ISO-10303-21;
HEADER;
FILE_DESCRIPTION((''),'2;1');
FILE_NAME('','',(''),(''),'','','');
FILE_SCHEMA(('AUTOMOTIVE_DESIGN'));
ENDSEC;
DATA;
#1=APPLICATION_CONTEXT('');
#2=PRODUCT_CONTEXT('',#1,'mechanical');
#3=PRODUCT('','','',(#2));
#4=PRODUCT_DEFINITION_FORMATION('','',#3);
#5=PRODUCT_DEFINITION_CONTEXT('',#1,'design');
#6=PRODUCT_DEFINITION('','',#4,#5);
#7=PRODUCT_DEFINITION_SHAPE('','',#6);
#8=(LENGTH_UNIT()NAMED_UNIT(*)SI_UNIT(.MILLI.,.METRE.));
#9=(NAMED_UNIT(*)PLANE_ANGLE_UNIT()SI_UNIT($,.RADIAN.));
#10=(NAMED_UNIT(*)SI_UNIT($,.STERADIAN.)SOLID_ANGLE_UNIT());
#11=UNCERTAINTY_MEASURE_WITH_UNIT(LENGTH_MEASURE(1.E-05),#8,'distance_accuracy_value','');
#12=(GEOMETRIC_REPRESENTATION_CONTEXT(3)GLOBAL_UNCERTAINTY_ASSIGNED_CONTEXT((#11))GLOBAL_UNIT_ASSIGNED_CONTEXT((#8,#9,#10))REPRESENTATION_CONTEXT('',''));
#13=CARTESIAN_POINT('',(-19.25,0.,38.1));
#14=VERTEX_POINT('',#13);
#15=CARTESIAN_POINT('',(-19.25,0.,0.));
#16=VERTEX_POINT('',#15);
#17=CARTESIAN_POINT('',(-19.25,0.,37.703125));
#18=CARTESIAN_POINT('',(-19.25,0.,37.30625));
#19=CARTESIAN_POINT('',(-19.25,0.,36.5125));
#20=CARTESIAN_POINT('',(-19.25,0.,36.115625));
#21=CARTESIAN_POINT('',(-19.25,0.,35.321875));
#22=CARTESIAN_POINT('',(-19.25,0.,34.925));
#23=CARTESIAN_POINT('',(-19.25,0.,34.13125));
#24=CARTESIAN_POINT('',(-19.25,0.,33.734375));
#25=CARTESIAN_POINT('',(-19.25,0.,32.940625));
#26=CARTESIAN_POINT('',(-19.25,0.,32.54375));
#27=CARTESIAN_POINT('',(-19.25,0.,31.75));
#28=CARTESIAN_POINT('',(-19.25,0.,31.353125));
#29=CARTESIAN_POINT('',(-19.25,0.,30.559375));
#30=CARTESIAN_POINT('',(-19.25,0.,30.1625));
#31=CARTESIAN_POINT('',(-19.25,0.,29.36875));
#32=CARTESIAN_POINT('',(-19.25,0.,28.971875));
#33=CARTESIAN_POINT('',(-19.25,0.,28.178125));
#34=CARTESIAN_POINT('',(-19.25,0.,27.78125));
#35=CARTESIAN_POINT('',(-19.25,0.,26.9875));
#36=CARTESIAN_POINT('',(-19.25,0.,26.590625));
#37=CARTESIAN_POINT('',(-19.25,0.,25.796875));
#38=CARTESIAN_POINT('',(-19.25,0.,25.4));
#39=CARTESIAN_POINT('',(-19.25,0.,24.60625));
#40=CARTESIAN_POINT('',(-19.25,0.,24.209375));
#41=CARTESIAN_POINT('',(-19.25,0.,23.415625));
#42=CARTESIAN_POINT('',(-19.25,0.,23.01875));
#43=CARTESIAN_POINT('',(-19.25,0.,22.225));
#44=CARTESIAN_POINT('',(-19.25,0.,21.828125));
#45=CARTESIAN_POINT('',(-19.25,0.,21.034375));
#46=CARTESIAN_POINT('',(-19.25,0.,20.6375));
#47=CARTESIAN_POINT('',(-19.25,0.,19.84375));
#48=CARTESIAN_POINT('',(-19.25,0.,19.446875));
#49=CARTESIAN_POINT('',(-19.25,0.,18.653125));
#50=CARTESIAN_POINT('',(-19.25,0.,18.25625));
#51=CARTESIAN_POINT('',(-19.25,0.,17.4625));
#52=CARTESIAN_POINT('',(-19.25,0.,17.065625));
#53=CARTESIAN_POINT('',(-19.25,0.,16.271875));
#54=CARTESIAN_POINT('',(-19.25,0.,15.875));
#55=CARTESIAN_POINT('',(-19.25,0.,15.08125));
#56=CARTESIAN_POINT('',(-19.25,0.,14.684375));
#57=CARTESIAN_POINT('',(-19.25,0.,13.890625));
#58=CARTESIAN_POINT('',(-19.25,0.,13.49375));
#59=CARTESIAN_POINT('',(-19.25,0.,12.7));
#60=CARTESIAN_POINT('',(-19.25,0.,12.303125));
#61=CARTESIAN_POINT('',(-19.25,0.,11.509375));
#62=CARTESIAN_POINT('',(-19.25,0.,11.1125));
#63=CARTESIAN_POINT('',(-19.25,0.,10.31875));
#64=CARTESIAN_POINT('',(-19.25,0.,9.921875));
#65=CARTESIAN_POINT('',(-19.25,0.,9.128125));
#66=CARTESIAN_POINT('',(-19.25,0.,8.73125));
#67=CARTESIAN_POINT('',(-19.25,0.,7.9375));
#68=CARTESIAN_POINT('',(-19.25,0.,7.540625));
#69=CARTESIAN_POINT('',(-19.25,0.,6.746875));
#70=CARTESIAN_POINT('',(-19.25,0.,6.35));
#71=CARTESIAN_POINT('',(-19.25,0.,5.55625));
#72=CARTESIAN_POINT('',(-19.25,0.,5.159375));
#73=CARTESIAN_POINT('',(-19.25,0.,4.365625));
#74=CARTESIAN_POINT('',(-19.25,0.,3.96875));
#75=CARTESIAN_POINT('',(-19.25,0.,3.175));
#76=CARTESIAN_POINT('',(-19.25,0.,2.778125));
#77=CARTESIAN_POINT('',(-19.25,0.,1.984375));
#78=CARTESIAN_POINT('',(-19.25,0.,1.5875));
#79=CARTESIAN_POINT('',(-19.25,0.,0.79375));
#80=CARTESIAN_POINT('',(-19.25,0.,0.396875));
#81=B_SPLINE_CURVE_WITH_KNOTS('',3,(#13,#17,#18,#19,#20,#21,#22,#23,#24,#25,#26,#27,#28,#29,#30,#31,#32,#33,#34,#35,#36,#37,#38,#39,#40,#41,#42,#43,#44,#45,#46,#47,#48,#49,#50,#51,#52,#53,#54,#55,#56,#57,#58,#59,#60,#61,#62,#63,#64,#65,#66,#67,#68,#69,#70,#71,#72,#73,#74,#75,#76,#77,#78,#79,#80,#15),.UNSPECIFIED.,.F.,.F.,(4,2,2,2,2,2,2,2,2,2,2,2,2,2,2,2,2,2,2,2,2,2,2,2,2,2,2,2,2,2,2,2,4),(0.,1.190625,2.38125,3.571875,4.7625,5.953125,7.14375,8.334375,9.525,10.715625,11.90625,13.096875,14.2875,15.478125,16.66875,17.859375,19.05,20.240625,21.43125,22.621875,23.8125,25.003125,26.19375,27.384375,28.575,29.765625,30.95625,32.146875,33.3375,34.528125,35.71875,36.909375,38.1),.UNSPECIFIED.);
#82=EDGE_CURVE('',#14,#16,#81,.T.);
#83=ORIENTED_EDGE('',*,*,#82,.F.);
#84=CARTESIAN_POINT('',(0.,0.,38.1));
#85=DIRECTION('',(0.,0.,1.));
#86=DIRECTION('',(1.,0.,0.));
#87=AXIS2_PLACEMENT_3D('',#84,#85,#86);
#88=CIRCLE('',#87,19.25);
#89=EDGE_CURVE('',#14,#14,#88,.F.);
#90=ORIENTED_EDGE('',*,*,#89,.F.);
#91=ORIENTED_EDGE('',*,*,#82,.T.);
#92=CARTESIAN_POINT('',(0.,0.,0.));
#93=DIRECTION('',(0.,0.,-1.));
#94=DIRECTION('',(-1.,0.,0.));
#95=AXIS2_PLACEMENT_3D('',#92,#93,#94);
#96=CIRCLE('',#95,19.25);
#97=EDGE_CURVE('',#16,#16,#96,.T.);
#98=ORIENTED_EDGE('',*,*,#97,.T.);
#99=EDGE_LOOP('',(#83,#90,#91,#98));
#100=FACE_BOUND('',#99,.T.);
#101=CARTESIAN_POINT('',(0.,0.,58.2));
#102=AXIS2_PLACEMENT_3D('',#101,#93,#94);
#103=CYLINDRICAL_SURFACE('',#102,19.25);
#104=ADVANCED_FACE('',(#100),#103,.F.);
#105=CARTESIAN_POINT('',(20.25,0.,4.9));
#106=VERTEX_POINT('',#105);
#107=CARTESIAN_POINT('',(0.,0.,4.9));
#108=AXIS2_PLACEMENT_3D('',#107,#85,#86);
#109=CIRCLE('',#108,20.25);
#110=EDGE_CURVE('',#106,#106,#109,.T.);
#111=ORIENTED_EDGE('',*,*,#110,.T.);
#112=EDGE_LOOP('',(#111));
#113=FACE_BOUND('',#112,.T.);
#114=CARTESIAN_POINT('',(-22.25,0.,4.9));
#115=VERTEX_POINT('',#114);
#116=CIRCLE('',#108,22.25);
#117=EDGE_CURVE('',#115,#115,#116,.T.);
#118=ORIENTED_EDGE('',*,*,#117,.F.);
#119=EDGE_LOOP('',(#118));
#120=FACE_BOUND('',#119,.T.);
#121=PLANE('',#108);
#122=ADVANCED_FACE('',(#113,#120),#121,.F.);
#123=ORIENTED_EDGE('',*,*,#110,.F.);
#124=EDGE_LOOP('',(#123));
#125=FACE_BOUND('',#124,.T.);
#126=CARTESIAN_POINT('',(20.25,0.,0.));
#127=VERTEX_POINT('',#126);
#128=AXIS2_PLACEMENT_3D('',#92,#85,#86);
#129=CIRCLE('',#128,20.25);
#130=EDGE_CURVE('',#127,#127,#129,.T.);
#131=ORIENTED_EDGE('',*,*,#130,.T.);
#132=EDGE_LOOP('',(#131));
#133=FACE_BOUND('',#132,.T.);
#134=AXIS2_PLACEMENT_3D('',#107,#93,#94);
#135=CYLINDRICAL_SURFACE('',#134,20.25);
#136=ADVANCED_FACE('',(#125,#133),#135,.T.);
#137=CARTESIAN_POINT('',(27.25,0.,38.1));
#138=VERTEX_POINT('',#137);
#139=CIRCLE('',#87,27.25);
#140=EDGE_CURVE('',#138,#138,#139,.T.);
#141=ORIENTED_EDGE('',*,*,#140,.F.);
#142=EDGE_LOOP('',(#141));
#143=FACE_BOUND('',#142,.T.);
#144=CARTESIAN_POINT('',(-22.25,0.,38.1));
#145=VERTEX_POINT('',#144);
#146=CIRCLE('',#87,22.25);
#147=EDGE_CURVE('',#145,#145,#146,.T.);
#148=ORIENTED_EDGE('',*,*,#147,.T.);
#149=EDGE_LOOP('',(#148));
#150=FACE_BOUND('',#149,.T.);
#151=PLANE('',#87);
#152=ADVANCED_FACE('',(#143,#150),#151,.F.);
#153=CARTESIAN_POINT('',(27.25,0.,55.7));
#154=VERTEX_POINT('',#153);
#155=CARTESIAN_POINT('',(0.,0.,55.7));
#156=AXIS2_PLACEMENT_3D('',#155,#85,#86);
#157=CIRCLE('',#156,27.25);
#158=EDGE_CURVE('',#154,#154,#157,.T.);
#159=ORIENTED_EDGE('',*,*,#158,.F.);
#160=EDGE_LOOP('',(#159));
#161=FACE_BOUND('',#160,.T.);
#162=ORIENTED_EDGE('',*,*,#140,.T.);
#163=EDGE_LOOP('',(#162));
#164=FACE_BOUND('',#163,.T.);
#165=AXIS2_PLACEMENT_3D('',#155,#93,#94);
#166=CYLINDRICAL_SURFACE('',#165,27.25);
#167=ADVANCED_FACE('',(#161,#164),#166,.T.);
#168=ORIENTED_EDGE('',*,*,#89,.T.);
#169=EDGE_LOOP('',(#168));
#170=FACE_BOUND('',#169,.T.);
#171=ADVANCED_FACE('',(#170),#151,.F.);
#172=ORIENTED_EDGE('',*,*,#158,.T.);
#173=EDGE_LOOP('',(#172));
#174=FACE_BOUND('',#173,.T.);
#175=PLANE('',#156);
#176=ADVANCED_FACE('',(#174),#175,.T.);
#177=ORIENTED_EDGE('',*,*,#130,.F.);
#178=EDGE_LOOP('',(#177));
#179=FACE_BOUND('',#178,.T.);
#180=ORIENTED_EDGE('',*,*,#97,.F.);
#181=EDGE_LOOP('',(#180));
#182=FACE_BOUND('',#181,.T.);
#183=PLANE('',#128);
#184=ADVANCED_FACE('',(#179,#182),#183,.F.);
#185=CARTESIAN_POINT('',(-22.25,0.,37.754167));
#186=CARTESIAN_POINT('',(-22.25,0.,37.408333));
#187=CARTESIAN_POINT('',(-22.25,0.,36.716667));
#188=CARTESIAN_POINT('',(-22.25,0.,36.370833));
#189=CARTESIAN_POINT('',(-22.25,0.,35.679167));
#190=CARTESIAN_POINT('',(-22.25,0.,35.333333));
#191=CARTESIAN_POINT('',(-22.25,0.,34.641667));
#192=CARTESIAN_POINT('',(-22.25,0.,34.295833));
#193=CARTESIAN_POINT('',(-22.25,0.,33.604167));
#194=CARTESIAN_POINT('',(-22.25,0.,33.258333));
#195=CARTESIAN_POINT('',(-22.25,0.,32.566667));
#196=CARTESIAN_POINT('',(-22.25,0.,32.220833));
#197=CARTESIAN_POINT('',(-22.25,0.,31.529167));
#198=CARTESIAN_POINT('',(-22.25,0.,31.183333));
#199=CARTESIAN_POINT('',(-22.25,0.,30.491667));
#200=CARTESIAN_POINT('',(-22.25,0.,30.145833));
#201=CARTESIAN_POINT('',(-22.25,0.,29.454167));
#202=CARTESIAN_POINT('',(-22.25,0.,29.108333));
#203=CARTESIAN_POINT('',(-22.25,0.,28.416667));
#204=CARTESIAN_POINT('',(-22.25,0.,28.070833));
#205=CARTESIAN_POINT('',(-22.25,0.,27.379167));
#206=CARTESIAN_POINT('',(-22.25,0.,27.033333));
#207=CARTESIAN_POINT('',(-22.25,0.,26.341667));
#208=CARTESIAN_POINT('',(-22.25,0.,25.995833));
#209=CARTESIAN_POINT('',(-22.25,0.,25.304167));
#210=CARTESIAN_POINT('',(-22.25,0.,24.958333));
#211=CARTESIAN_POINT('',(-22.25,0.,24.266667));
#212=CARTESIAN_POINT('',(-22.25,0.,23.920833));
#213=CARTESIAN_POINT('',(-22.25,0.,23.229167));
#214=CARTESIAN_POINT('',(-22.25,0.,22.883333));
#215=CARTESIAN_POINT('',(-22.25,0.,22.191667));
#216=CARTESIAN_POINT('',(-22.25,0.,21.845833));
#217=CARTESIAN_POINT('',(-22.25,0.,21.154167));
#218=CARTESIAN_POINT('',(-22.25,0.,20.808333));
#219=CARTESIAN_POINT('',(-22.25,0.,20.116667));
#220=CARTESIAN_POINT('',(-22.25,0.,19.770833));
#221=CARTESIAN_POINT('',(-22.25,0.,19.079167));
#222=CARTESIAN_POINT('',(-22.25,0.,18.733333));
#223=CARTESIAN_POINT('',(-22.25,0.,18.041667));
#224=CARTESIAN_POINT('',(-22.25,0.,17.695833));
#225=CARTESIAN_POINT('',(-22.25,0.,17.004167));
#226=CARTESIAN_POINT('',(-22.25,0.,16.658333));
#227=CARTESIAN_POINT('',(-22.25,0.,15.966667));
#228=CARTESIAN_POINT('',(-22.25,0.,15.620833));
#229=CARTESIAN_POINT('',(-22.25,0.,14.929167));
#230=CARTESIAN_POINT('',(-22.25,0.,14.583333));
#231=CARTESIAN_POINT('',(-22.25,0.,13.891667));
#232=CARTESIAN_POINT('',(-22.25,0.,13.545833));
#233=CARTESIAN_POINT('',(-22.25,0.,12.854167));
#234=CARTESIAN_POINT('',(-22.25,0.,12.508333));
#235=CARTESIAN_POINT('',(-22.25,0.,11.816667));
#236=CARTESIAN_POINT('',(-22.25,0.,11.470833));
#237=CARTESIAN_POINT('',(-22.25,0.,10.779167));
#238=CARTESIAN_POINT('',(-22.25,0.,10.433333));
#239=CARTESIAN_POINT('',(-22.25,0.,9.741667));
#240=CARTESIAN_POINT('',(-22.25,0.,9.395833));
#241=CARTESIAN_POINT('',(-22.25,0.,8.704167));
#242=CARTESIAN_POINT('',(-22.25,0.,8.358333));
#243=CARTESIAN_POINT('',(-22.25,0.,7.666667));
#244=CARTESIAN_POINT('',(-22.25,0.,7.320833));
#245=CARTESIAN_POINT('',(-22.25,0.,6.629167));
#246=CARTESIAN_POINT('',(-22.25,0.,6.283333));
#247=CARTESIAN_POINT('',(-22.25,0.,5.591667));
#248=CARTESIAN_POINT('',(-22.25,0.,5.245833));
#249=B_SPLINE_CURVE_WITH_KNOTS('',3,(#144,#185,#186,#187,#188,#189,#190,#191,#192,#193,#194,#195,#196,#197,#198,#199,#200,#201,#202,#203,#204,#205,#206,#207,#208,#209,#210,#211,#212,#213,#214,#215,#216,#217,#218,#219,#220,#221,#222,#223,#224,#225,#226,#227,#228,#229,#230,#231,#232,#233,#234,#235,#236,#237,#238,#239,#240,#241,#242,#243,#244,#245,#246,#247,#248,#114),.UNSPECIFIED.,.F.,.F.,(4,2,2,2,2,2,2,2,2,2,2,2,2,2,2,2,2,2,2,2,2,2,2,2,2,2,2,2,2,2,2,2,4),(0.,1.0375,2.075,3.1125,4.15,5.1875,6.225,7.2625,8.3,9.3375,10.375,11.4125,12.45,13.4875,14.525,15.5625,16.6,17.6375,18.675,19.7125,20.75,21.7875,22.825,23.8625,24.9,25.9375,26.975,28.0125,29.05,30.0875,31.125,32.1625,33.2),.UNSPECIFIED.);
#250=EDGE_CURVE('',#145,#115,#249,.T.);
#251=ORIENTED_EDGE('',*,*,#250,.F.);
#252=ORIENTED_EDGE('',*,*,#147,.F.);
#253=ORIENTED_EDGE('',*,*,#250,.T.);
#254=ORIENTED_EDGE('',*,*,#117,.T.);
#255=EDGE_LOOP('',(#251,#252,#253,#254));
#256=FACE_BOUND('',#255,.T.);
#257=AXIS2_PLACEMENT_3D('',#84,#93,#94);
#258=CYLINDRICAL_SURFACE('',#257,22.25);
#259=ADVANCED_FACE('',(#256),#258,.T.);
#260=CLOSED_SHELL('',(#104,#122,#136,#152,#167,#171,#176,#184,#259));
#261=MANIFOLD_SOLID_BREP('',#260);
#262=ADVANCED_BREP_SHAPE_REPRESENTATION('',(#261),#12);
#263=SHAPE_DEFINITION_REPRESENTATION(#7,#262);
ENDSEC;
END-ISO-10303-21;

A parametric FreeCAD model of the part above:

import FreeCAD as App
import Part
import Sketcher
from FreeCAD import Vector

doc = App.newDocument("Part")
params = doc.addObject("Spreadsheet::Sheet", "Params")
for row, (alias, value) in enumerate([
    ("sketch1_diameter", "40.5 mm"),
    ("pad1_length", "4.9 mm"),
    ("sketch2_diameter", "44.5 mm"),
    ("pad2_length", "33.2 mm"),
    ("sketch3_diameter", "38.5 mm"),
    ("pocket1_length", "58.2 mm"),
    ("sketch4_diameter", "54.5 mm"),
    ("pad3_length", "17.6 mm"),
], start=1):
    params.set(f"A{row}", alias)
    params.set(f"B{row}", "=" + value)
    params.setAlias(f"B{row}", alias)

body = doc.addObject("PartDesign::Body", "Body")

# Sketch on XY plane
sketch1 = doc.addObject("Sketcher::SketchObject", "Sketch")
body.addObject(sketch1)
sketch1.AttachmentSupport = (doc.XY_Plane, [""])
sketch1.MapMode = "FlatFace"
sketch1.addGeometry(Part.Circle(Vector(0, 0, 0), Vector(0, 0, 1), 20), False)
sketch1.addConstraint(Sketcher.Constraint("Coincident", 0, 3, -1, 1))
sketch1.addConstraint(Sketcher.Constraint("Diameter", 0, 40.5))
sketch1.setExpression("Constraints[1]", "Params.sketch1_diameter")
pad1 = doc.addObject("PartDesign::Pad", "Pad")
body.addObject(pad1)
pad1.Profile = sketch1
pad1.setExpression("Length", "Params.pad1_length")

# Sketch on XY plane
sketch2 = doc.addObject("Sketcher::SketchObject", "Sketch001")
body.addObject(sketch2)
sketch2.AttachmentSupport = (doc.XY_Plane, [""])
sketch2.MapMode = "FlatFace"
sketch2.AttachmentOffset = App.Placement(Vector(0, 0, 4.9), App.Rotation())
sketch2.addGeometry(Part.Circle(Vector(0, 0, 0), Vector(0, 0, 1), 22), False)
sketch2.addConstraint(Sketcher.Constraint("Coincident", 0, 3, -1, 1))
sketch2.addConstraint(Sketcher.Constraint("Diameter", 0, 44.5))
sketch2.setExpression("Constraints[1]", "Params.sketch2_diameter")
pad2 = doc.addObject("PartDesign::Pad", "Pad001")
body.addObject(pad2)
pad2.Profile = sketch2
pad2.setExpression("Length", "Params.pad2_length")

# Sketch on XY plane
sketch3 = doc.addObject("Sketcher::SketchObject", "Sketch002")
body.addObject(sketch3)
sketch3.AttachmentSupport = (doc.XY_Plane, [""])
sketch3.MapMode = "FlatFace"
sketch3.addGeometry(Part.Circle(Vector(0, 0, 0), Vector(0, 0, 1), 19), False)
sketch3.addConstraint(Sketcher.Constraint("Coincident", 0, 3, -1, 1))
sketch3.addConstraint(Sketcher.Constraint("Diameter", 0, 38.5))
sketch3.setExpression("Constraints[1]", "Params.sketch3_diameter")
pocket1 = doc.addObject("PartDesign::Pocket", "Pocket")
body.addObject(pocket1)
pocket1.Profile = sketch3
pocket1.setExpression("Length", "Params.pocket1_length")
pocket1.Reversed = True

# Sketch on XY plane
sketch4 = doc.addObject("Sketcher::SketchObject", "Sketch003")
body.addObject(sketch4)
sketch4.AttachmentSupport = (doc.XY_Plane, [""])
sketch4.MapMode = "FlatFace"
sketch4.AttachmentOffset = App.Placement(Vector(0, 0, 38.1), App.Rotation())
sketch4.addGeometry(Part.Circle(Vector(0, 0, 0), Vector(0, 0, 1), 27), False)
sketch4.addConstraint(Sketcher.Constraint("Coincident", 0, 3, -1, 1))
sketch4.addConstraint(Sketcher.Constraint("Diameter", 0, 54.5))
sketch4.setExpression("Constraints[1]", "Params.sketch4_diameter")
pad3 = doc.addObject("PartDesign::Pad", "Pad002")
body.addObject(pad3)
pad3.Profile = sketch4
pad3.setExpression("Length", "Params.pad3_length")

doc.recompute()
